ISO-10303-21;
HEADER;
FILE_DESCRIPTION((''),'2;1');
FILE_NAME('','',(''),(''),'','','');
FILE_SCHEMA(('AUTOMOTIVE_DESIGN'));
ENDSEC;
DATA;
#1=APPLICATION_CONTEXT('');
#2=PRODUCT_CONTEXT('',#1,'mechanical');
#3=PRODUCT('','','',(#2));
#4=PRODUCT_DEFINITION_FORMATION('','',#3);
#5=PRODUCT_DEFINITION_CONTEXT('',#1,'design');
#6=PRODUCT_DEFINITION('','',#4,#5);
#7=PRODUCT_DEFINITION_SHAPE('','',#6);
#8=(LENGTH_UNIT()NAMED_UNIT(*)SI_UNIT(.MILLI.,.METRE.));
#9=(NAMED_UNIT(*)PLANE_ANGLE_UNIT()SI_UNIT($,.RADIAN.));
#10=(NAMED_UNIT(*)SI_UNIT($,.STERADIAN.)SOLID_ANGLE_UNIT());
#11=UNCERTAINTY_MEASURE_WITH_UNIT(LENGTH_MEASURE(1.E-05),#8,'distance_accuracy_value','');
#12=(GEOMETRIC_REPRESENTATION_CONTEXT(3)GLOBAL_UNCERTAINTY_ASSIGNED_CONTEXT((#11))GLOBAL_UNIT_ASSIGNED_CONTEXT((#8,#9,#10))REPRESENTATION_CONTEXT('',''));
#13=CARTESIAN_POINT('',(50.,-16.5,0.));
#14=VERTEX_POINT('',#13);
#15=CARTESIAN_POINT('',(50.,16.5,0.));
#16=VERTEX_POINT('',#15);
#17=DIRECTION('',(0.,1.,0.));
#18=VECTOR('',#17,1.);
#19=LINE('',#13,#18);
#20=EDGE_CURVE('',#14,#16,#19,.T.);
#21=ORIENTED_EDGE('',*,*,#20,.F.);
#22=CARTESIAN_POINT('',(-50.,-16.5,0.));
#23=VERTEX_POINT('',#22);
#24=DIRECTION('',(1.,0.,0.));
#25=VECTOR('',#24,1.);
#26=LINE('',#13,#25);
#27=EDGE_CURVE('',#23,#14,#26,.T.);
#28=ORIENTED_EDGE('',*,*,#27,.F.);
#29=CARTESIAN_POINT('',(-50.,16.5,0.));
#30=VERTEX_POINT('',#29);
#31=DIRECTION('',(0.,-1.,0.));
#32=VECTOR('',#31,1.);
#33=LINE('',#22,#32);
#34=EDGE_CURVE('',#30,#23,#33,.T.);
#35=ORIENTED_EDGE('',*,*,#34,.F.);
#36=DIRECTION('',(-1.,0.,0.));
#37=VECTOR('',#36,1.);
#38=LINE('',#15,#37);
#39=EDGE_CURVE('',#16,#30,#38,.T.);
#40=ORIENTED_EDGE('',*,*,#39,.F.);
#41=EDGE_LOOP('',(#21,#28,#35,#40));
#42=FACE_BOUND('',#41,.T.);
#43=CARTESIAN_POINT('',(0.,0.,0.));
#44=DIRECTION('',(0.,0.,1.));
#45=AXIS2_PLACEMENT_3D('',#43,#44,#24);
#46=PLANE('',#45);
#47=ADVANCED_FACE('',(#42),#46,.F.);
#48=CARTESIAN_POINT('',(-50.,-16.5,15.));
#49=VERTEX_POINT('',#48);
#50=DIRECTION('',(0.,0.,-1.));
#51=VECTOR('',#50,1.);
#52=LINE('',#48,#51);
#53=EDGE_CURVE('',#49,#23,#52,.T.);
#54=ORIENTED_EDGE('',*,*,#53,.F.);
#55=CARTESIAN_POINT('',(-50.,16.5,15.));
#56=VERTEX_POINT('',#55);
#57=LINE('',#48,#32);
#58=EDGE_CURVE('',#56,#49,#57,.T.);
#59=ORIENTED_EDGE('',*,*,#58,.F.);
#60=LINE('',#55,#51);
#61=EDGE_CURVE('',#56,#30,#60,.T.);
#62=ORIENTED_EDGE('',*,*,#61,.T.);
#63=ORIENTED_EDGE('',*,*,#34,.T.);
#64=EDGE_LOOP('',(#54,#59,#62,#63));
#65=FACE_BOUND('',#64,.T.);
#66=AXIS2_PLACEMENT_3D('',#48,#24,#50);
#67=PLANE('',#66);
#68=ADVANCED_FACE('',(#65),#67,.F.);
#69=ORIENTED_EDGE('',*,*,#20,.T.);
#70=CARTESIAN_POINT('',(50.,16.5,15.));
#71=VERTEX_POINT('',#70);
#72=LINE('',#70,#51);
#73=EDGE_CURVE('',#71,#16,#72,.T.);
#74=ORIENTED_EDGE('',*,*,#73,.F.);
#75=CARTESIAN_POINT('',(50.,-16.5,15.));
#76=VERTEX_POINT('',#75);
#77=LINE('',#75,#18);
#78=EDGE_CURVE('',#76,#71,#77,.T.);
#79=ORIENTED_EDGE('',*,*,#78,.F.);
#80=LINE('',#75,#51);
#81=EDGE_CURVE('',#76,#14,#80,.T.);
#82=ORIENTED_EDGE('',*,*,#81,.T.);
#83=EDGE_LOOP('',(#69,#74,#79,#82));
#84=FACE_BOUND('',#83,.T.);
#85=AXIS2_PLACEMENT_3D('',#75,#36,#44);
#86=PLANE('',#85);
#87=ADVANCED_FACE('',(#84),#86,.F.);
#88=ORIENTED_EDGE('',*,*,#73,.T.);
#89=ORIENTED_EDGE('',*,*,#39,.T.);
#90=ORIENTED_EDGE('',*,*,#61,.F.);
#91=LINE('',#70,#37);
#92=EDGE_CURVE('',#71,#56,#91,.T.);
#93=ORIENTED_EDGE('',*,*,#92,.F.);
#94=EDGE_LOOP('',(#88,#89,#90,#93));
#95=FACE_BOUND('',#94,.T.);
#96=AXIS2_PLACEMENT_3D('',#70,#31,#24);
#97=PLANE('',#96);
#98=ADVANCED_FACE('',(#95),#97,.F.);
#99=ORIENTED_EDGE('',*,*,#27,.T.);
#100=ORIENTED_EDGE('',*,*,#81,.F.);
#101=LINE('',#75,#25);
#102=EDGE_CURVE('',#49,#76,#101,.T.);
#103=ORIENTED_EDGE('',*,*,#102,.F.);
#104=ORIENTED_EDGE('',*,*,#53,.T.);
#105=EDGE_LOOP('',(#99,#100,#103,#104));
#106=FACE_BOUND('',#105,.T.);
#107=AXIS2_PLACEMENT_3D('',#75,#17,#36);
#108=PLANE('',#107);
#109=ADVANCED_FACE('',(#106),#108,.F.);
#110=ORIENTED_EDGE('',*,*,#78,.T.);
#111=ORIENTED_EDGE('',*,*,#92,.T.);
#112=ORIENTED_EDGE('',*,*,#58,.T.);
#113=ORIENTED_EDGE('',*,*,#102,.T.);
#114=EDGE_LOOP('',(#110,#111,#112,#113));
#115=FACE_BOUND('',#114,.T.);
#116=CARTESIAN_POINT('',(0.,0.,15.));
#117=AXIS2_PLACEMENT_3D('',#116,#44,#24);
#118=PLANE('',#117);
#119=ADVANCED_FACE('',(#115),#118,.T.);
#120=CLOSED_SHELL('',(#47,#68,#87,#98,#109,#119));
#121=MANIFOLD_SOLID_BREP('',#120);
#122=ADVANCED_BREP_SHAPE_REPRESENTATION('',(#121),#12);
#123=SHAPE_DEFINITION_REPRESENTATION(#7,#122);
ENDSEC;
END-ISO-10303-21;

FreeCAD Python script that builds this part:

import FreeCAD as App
import Part
import Sketcher

V = App.Vector


def add_polygon(sketch, points):
    """Adds a closed chain of lines whose ends are joined by coincident constraints."""
    first, n = sketch.GeometryCount, len(points)
    for a, b in zip(points, points[1:] + points[:1]):
        sketch.addGeometry(Part.LineSegment(App.Vector(*a, 0), App.Vector(*b, 0)), False)
    for i in range(n):
        sketch.addConstraint(Sketcher.Constraint("Coincident", first + i, 2, first + (i + 1) % n, 1))

doc = App.newDocument("Part")
body = doc.addObject("PartDesign::Body", "Body")

sketch1 = body.newObject("Sketcher::SketchObject", "Sketch")
sketch1.AttachmentSupport = (doc.getObject("XY_Plane"), [""])
sketch1.MapMode = "FlatFace"
add_polygon(sketch1, [(-50, 16), (-50, -16), (50, -16), (50, 16)])
sketch1.addConstraint([
    Sketcher.Constraint("Vertical", 0),
    Sketcher.Constraint("Horizontal", 1),
    Sketcher.Constraint("Vertical", 2),
    Sketcher.Constraint("Horizontal", 3),
    Sketcher.Constraint("Symmetric", 0, 2, 2, 2, -1, 1),
    Sketcher.Constraint("DistanceX", 1, 1, 1, 2, 100.0),
    Sketcher.Constraint("DistanceY", 0, 2, 0, 1, 33.0),
])
pad1 = body.newObject("PartDesign::Pad", "Pad")
pad1.Profile = sketch1
pad1.Length = 15

doc.recompute()
